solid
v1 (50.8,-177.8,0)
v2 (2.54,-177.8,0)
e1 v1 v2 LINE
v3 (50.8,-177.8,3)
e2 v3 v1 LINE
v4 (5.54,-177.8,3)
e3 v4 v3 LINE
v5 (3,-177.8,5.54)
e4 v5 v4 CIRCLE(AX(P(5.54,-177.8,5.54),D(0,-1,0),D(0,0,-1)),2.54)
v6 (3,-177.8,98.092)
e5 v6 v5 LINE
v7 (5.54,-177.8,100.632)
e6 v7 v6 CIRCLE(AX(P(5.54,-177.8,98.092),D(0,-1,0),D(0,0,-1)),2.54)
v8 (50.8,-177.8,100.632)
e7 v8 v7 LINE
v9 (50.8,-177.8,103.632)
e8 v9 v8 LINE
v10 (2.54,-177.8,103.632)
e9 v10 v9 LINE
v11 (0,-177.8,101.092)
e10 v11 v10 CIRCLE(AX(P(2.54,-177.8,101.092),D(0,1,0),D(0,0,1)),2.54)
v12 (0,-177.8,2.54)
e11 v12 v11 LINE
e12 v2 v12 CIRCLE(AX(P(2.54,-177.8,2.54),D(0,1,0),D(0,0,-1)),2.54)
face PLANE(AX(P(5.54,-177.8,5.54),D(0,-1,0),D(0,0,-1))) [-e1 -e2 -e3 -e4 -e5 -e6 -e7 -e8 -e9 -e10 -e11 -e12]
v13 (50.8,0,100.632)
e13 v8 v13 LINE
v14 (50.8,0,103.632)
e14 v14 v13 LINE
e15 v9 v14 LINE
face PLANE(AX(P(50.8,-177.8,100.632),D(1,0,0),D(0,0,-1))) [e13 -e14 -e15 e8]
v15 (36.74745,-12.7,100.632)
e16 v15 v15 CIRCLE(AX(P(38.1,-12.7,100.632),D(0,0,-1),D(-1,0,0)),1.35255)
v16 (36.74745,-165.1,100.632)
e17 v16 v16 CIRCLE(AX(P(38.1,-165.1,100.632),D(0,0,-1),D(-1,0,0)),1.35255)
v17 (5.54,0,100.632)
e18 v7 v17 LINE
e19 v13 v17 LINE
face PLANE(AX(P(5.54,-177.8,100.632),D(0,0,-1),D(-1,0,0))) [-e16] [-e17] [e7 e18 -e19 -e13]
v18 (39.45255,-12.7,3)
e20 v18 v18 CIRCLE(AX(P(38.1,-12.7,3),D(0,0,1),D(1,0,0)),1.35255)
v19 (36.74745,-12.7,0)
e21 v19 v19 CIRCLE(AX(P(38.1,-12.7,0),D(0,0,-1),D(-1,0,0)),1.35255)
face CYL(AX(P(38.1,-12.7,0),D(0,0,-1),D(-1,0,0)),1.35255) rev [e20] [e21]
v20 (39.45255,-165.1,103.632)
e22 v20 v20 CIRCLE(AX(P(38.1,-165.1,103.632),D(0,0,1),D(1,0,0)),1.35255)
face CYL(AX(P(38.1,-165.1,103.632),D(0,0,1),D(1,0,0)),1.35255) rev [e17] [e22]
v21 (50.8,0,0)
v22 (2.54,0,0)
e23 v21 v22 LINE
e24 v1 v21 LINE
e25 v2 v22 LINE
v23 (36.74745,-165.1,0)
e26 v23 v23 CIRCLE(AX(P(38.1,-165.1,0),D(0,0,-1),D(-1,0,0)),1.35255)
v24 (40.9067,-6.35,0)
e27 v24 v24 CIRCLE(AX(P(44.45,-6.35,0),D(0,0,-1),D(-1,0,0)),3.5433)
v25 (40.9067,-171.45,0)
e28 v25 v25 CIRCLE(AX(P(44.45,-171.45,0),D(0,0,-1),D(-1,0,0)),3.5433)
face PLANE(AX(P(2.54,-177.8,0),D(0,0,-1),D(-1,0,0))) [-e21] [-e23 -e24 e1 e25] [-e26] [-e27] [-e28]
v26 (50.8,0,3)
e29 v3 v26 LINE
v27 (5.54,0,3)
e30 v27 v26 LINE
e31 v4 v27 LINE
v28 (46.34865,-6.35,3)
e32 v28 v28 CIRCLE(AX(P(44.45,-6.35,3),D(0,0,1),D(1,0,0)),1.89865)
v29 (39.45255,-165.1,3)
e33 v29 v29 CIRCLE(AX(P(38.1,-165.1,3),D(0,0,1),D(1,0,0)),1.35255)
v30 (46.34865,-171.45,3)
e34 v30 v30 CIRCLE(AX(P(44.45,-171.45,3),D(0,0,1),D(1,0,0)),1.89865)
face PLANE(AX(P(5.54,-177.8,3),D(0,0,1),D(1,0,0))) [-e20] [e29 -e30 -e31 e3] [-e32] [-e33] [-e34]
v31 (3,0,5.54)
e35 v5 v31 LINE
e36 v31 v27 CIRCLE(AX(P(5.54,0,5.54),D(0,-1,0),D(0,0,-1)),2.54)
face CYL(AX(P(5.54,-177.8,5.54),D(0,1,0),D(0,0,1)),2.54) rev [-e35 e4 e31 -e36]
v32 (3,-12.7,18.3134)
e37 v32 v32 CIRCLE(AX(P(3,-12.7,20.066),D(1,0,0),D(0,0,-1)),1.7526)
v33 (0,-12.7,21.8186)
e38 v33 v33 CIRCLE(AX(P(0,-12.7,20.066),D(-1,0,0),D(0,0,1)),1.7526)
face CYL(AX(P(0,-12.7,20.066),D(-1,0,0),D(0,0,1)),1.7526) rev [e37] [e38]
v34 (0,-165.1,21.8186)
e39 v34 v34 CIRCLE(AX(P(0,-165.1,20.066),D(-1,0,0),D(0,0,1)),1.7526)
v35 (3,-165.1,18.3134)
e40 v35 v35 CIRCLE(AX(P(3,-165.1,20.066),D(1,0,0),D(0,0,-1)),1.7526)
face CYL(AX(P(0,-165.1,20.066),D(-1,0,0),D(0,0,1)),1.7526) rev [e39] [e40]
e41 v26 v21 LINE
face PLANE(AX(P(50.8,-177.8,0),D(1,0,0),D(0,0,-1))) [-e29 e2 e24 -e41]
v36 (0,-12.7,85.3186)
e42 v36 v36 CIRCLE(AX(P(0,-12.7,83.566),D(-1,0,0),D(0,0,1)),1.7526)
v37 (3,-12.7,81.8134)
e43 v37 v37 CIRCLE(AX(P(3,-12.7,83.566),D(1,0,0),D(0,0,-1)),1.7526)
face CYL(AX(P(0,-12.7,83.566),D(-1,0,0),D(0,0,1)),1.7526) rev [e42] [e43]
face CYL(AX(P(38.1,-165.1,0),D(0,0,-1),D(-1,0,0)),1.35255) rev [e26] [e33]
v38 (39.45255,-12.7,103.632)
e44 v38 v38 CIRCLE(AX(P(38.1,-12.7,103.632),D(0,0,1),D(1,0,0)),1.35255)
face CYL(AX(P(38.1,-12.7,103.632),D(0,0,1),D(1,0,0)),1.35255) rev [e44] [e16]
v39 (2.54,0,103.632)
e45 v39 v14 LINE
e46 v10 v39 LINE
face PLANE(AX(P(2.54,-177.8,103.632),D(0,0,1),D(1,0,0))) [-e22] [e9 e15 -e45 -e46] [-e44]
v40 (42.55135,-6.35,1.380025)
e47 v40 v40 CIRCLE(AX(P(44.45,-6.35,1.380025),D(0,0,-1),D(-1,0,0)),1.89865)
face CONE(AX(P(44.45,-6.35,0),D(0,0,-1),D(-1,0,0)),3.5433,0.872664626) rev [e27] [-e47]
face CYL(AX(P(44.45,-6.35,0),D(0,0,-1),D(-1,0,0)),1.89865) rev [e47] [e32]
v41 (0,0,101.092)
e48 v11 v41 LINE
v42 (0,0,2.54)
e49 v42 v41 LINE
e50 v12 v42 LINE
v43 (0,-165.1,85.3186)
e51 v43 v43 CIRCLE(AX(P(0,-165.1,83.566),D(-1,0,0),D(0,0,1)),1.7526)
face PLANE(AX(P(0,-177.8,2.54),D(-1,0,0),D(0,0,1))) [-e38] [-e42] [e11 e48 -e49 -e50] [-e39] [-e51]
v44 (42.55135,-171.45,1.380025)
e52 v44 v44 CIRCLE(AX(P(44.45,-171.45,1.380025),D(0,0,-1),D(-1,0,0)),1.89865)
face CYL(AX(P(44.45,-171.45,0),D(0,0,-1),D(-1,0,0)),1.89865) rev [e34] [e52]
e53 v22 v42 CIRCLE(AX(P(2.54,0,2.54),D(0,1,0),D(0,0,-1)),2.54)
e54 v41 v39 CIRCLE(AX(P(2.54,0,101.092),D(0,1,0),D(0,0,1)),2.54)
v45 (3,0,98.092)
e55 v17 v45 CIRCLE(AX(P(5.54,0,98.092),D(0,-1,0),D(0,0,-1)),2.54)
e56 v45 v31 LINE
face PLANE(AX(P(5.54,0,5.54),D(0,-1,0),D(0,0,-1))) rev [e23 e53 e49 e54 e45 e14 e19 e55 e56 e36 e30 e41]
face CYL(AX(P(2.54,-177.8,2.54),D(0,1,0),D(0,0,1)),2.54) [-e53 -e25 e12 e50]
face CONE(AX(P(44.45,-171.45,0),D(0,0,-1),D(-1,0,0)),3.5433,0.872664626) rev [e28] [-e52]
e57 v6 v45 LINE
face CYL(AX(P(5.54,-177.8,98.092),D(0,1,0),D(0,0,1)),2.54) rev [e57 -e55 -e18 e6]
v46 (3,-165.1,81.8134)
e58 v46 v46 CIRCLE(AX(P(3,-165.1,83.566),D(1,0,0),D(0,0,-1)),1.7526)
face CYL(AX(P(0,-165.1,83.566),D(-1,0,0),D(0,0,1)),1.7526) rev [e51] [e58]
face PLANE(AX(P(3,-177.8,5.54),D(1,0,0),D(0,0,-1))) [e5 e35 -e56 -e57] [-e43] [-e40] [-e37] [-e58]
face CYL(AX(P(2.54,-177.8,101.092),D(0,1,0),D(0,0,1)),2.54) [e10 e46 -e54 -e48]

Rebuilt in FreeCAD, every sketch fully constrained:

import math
import FreeCAD as App
import Part
import Sketcher
from FreeCAD import Vector
Q = App.Units.Quantity

doc = App.newDocument("Part")
body = doc.addObject("PartDesign::Body", "Body")

sketch1 = doc.addObject("Sketcher::SketchObject", "Sketch")
body.addObject(sketch1)
sketch1.AttachmentSupport = (doc.XZ_Plane, [""])
sketch1.MapMode = "FlatFace"
sketch1.addGeometry(Part.LineSegment(Vector(0, 2.54, 0), Vector(0, 101.092, 0)), False)
sketch1.addGeometry(Part.ArcOfCircle(Part.Circle(Vector(2.54, 101.092, 0), Vector(0, 0, 1), 2.54), math.radians(90), math.radians(180)), False)
sketch1.addGeometry(Part.LineSegment(Vector(2.54, 103.632, 0), Vector(50.8, 103.632, 0)), False)
sketch1.addGeometry(Part.LineSegment(Vector(50.8, 103.632, 0), Vector(50.8, 100.632, 0)), False)
sketch1.addGeometry(Part.LineSegment(Vector(50.8, 100.632, 0), Vector(5.54, 100.632, 0)), False)
sketch1.addGeometry(Part.ArcOfCircle(Part.Circle(Vector(5.54, 98.092, 0), Vector(0, 0, 1), 2.54), math.radians(90), math.radians(180)), False)
sketch1.addGeometry(Part.LineSegment(Vector(3, 98.092, 0), Vector(3, 5.54, 0)), False)
sketch1.addGeometry(Part.ArcOfCircle(Part.Circle(Vector(5.54, 5.54, 0), Vector(0, 0, 1), 2.54), math.radians(-180), math.radians(-90)), False)
sketch1.addGeometry(Part.LineSegment(Vector(5.54, 3, 0), Vector(50.8, 3, 0)), False)
sketch1.addGeometry(Part.LineSegment(Vector(50.8, 3, 0), Vector(50.8, 0, 0)), False)
sketch1.addGeometry(Part.LineSegment(Vector(50.8, 0, 0), Vector(2.54, 0, 0)), False)
sketch1.addGeometry(Part.ArcOfCircle(Part.Circle(Vector(2.54, 2.54, 0), Vector(0, 0, 1), 2.54), math.radians(-180), math.radians(-90)), False)
sketch1.addConstraint(Sketcher.Constraint("Tangent", 0, 2, 1, 2))
sketch1.addConstraint(Sketcher.Constraint("Tangent", 1, 1, 2, 1))
sketch1.addConstraint(Sketcher.Constraint("Coincident", 2, 2, 3, 1))
sketch1.addConstraint(Sketcher.Constraint("Coincident", 3, 2, 4, 1))
sketch1.addConstraint(Sketcher.Constraint("Tangent", 4, 2, 5, 1))
sketch1.addConstraint(Sketcher.Constraint("Tangent", 5, 2, 6, 1))
sketch1.addConstraint(Sketcher.Constraint("Tangent", 6, 2, 7, 1))
sketch1.addConstraint(Sketcher.Constraint("Tangent", 7, 2, 8, 1))
sketch1.addConstraint(Sketcher.Constraint("Coincident", 8, 2, 9, 1))
sketch1.addConstraint(Sketcher.Constraint("Coincident", 9, 2, 10, 1))
sketch1.addConstraint(Sketcher.Constraint("Tangent", 10, 2, 11, 2))
sketch1.addConstraint(Sketcher.Constraint("Tangent", 11, 1, 0, 1))
sketch1.addConstraint(Sketcher.Constraint("Vertical", 0))
sketch1.addConstraint(Sketcher.Constraint("Horizontal", 2))
sketch1.addConstraint(Sketcher.Constraint("Vertical", 3))
sketch1.addConstraint(Sketcher.Constraint("Horizontal", 4))
sketch1.addConstraint(Sketcher.Constraint("Vertical", 6))
sketch1.addConstraint(Sketcher.Constraint("Horizontal", 8))
sketch1.addConstraint(Sketcher.Constraint("Vertical", 9))
sketch1.addConstraint(Sketcher.Constraint("Horizontal", 10))
sketch1.addConstraint(Sketcher.Constraint("Equal", 1, 5))
sketch1.addConstraint(Sketcher.Constraint("Equal", 5, 7))
sketch1.addConstraint(Sketcher.Constraint("Equal", 7, 11))
sketch1.addConstraint(Sketcher.Constraint("PointOnObject", 0, 2, -2))
sketch1.addConstraint(Sketcher.Constraint("PointOnObject", 9, 2, -1))
sketch1.addConstraint(Sketcher.Constraint("Vertical", 3, 2, 8, 2))
sketch1.addConstraint(Sketcher.Constraint("Equal", 3, 9))
sketch1.addConstraint(Sketcher.Constraint("Radius", 1, Q("0.1 in")))
sketch1.addConstraint(Sketcher.Constraint("DistanceX", 2, 1, 2, 2, Q("1.9 in")))
sketch1.addConstraint(Sketcher.Constraint("DistanceY", 0, 1, 0, 2, Q("3.88 in")))
sketch1.addConstraint(Sketcher.Constraint("DistanceX", 4, 2, 4, 1, 45.26))
sketch1.addConstraint(Sketcher.Constraint("DistanceY", 3, 2, 3, 1, 3.0))
pad1 = doc.addObject("PartDesign::Pad", "Pad")
body.addObject(pad1)
pad1.Profile = sketch1
pad1.Length = Q("7 in")

sketch2 = doc.addObject("Sketcher::SketchObject", "Sketch001")
body.addObject(sketch2)
sketch2.AttachmentSupport = (doc.YZ_Plane, [""])
sketch2.MapMode = "FlatFace"
sketch2.addGeometry(Part.Circle(Vector(-12.7, 20.066, 0), Vector(0, 0, 1), 1.35255), False)
sketch2.addGeometry(Part.Circle(Vector(-12.7, 83.566, 0), Vector(0, 0, 1), 1.35255), False)
sketch2.addGeometry(Part.Circle(Vector(-165.1, 83.566, 0), Vector(0, 0, 1), 1.35255), False)
sketch2.addGeometry(Part.Circle(Vector(-165.1, 20.066, 0), Vector(0, 0, 1), 1.35255), False)
sketch2.addConstraint(Sketcher.Constraint("Equal", 0, 1))
sketch2.addConstraint(Sketcher.Constraint("Equal", 1, 2))
sketch2.addConstraint(Sketcher.Constraint("Equal", 2, 3))
sketch2.addConstraint(Sketcher.Constraint("Horizontal", 1, 3, 2, 3))
sketch2.addConstraint(Sketcher.Constraint("Horizontal", 0, 3, 3, 3))
sketch2.addConstraint(Sketcher.Constraint("Vertical", 0, 3, 1, 3))
sketch2.addConstraint(Sketcher.Constraint("Vertical", 2, 3, 3, 3))
sketch2.addConstraint(Sketcher.Constraint("DistanceX", 2, 3, 1, 3, Q("6 in")))
sketch2.addConstraint(Sketcher.Constraint("Diameter", 0, Q("0.1065 in")))
sketch2.addConstraint(Sketcher.Constraint("DistanceX", 0, 3, -1, 1, Q("0.5 in")))
sketch2.addConstraint(Sketcher.Constraint("DistanceY", 0, 3, 1, 3, Q("2.5 in")))
sketch2.addConstraint(Sketcher.Constraint("DistanceY", -1, 1, 0, 3, Q("0.79 in")))
doc.recompute()
hole = doc.addObject("PartDesign::Hole", "Hole")
body.addObject(hole)
hole.Profile = sketch2
hole.ThreadType = "None"
hole.Diameter = Q("0.1065 in")
hole.DepthType = "Dimension"
hole.Depth = Q("0.3696 in")
hole.DrillPoint = "Angled"
hole.DrillPointAngle = 118
hole.HoleCutType = "Counterbore"
hole.HoleCutDiameter = Q("0.138 in")
hole.HoleCutDepth = Q("0.276 in")
hole.Reversed = True

sketch3 = doc.addObject("Sketcher::SketchObject", "Sketch002")
body.addObject(sketch3)
sketch3.AttachmentSupport = (doc.XY_Plane, [""])
sketch3.MapMode = "FlatFace"
sketch3.addGeometry(Part.Circle(Vector(38.1, -12.7, 0), Vector(0, 0, 1), 1.35255), False)
sketch3.addGeometry(Part.Circle(Vector(38.1, -165.1, 0), Vector(0, 0, 1), 1.35255), False)
sketch3.addConstraint(Sketcher.Constraint("Equal", 0, 1))
sketch3.addConstraint(Sketcher.Constraint("Vertical", 0, 3, 1, 3))
sketch3.addConstraint(Sketcher.Constraint("DistanceY", 1, 3, 0, 3, Q("6 in")))
sketch3.addConstraint(Sketcher.Constraint("Diameter", 0, Q("0.1065 in")))
sketch3.addConstraint(Sketcher.Constraint("DistanceX", -1, 1, 0, 3, Q("1.5 in")))
sketch3.addConstraint(Sketcher.Constraint("DistanceY", 0, 3, -1, 1, Q("0.5 in")))
doc.recompute()
hole2 = doc.addObject("PartDesign::Hole", "Hole001")
body.addObject(hole2)
hole2.Profile = sketch3
hole2.ThreadType = "None"
hole2.Diameter = Q("0.1065 in")
hole2.DepthType = "Dimension"
hole2.Depth = Q("0.3696 in")
hole2.DrillPoint = "Angled"
hole2.DrillPointAngle = 118
hole2.Reversed = True

sketch4 = doc.addObject("Sketcher::SketchObject", "Sketch003")
body.addObject(sketch4)
sketch4.AttachmentSupport = (doc.XY_Plane, [""])
sketch4.MapMode = "FlatFace"
sketch4.AttachmentOffset = App.Placement(Vector(0, 0, 4.08 * 25.4), App.Rotation())
sketch4.addGeometry(Part.Circle(Vector(38.1, -12.7, 0), Vector(0, 0, 1), 1.35255), False)
sketch4.addGeometry(Part.Circle(Vector(38.1, -165.1, 0), Vector(0, 0, 1), 1.35255), False)
sketch4.addConstraint(Sketcher.Constraint("Equal", 0, 1))
sketch4.addConstraint(Sketcher.Constraint("Vertical", 0, 3, 1, 3))
sketch4.addConstraint(Sketcher.Constraint("DistanceY", 1, 3, 0, 3, Q("6 in")))
sketch4.addConstraint(Sketcher.Constraint("Diameter", 0, Q("0.1065 in")))
sketch4.addConstraint(Sketcher.Constraint("DistanceX", -1, 1, 0, 3, Q("1.5 in")))
sketch4.addConstraint(Sketcher.Constraint("DistanceY", 0, 3, -1, 1, Q("0.5 in")))
doc.recompute()
hole3 = doc.addObject("PartDesign::Hole", "Hole002")
body.addObject(hole3)
hole3.Profile = sketch4
hole3.ThreadType = "None"
hole3.Diameter = Q("0.1065 in")
hole3.DepthType = "Dimension"
hole3.Depth = Q("0.3696 in")
hole3.DrillPoint = "Angled"
hole3.DrillPointAngle = 118

sketch5 = doc.addObject("Sketcher::SketchObject", "Sketch004")
body.addObject(sketch5)
sketch5.AttachmentSupport = (doc.XY_Plane, [""])
sketch5.MapMode = "FlatFace"
sketch5.addGeometry(Part.Circle(Vector(44.45, -171.45, 0), Vector(0, 0, 1), 1.89865), False)
sketch5.addGeometry(Part.Circle(Vector(44.45, -6.35, 0), Vector(0, 0, 1), 1.89865), False)
sketch5.addConstraint(Sketcher.Constraint("Equal", 0, 1))
sketch5.addConstraint(Sketcher.Constraint("Vertical", 0, 3, 1, 3))
sketch5.addConstraint(Sketcher.Constraint("Diameter", 0, Q("0.1495 in")))
sketch5.addConstraint(Sketcher.Constraint("DistanceY", 0, 3, 1, 3, Q("6.5 in")))
sketch5.addConstraint(Sketcher.Constraint("DistanceX", -1, 1, 0, 3, Q("1.75 in")))
sketch5.addConstraint(Sketcher.Constraint("DistanceY", 0, 3, -1, 1, Q("6.75 in")))
doc.recompute()
hole4 = doc.addObject("PartDesign::Hole", "Hole003")
body.addObject(hole4)
hole4.Profile = sketch5
hole4.ThreadType = "None"
hole4.Diameter = Q("0.1495 in")
hole4.DepthType = "Dimension"
hole4.Depth = Q("0.5 in")
hole4.DrillPoint = "Angled"
hole4.DrillPointAngle = 118
hole4.HoleCutType = "Countersink"
hole4.HoleCutDiameter = Q("0.279 in")
hole4.HoleCutCountersinkAngle = 100
hole4.Reversed = True

doc.recompute()
